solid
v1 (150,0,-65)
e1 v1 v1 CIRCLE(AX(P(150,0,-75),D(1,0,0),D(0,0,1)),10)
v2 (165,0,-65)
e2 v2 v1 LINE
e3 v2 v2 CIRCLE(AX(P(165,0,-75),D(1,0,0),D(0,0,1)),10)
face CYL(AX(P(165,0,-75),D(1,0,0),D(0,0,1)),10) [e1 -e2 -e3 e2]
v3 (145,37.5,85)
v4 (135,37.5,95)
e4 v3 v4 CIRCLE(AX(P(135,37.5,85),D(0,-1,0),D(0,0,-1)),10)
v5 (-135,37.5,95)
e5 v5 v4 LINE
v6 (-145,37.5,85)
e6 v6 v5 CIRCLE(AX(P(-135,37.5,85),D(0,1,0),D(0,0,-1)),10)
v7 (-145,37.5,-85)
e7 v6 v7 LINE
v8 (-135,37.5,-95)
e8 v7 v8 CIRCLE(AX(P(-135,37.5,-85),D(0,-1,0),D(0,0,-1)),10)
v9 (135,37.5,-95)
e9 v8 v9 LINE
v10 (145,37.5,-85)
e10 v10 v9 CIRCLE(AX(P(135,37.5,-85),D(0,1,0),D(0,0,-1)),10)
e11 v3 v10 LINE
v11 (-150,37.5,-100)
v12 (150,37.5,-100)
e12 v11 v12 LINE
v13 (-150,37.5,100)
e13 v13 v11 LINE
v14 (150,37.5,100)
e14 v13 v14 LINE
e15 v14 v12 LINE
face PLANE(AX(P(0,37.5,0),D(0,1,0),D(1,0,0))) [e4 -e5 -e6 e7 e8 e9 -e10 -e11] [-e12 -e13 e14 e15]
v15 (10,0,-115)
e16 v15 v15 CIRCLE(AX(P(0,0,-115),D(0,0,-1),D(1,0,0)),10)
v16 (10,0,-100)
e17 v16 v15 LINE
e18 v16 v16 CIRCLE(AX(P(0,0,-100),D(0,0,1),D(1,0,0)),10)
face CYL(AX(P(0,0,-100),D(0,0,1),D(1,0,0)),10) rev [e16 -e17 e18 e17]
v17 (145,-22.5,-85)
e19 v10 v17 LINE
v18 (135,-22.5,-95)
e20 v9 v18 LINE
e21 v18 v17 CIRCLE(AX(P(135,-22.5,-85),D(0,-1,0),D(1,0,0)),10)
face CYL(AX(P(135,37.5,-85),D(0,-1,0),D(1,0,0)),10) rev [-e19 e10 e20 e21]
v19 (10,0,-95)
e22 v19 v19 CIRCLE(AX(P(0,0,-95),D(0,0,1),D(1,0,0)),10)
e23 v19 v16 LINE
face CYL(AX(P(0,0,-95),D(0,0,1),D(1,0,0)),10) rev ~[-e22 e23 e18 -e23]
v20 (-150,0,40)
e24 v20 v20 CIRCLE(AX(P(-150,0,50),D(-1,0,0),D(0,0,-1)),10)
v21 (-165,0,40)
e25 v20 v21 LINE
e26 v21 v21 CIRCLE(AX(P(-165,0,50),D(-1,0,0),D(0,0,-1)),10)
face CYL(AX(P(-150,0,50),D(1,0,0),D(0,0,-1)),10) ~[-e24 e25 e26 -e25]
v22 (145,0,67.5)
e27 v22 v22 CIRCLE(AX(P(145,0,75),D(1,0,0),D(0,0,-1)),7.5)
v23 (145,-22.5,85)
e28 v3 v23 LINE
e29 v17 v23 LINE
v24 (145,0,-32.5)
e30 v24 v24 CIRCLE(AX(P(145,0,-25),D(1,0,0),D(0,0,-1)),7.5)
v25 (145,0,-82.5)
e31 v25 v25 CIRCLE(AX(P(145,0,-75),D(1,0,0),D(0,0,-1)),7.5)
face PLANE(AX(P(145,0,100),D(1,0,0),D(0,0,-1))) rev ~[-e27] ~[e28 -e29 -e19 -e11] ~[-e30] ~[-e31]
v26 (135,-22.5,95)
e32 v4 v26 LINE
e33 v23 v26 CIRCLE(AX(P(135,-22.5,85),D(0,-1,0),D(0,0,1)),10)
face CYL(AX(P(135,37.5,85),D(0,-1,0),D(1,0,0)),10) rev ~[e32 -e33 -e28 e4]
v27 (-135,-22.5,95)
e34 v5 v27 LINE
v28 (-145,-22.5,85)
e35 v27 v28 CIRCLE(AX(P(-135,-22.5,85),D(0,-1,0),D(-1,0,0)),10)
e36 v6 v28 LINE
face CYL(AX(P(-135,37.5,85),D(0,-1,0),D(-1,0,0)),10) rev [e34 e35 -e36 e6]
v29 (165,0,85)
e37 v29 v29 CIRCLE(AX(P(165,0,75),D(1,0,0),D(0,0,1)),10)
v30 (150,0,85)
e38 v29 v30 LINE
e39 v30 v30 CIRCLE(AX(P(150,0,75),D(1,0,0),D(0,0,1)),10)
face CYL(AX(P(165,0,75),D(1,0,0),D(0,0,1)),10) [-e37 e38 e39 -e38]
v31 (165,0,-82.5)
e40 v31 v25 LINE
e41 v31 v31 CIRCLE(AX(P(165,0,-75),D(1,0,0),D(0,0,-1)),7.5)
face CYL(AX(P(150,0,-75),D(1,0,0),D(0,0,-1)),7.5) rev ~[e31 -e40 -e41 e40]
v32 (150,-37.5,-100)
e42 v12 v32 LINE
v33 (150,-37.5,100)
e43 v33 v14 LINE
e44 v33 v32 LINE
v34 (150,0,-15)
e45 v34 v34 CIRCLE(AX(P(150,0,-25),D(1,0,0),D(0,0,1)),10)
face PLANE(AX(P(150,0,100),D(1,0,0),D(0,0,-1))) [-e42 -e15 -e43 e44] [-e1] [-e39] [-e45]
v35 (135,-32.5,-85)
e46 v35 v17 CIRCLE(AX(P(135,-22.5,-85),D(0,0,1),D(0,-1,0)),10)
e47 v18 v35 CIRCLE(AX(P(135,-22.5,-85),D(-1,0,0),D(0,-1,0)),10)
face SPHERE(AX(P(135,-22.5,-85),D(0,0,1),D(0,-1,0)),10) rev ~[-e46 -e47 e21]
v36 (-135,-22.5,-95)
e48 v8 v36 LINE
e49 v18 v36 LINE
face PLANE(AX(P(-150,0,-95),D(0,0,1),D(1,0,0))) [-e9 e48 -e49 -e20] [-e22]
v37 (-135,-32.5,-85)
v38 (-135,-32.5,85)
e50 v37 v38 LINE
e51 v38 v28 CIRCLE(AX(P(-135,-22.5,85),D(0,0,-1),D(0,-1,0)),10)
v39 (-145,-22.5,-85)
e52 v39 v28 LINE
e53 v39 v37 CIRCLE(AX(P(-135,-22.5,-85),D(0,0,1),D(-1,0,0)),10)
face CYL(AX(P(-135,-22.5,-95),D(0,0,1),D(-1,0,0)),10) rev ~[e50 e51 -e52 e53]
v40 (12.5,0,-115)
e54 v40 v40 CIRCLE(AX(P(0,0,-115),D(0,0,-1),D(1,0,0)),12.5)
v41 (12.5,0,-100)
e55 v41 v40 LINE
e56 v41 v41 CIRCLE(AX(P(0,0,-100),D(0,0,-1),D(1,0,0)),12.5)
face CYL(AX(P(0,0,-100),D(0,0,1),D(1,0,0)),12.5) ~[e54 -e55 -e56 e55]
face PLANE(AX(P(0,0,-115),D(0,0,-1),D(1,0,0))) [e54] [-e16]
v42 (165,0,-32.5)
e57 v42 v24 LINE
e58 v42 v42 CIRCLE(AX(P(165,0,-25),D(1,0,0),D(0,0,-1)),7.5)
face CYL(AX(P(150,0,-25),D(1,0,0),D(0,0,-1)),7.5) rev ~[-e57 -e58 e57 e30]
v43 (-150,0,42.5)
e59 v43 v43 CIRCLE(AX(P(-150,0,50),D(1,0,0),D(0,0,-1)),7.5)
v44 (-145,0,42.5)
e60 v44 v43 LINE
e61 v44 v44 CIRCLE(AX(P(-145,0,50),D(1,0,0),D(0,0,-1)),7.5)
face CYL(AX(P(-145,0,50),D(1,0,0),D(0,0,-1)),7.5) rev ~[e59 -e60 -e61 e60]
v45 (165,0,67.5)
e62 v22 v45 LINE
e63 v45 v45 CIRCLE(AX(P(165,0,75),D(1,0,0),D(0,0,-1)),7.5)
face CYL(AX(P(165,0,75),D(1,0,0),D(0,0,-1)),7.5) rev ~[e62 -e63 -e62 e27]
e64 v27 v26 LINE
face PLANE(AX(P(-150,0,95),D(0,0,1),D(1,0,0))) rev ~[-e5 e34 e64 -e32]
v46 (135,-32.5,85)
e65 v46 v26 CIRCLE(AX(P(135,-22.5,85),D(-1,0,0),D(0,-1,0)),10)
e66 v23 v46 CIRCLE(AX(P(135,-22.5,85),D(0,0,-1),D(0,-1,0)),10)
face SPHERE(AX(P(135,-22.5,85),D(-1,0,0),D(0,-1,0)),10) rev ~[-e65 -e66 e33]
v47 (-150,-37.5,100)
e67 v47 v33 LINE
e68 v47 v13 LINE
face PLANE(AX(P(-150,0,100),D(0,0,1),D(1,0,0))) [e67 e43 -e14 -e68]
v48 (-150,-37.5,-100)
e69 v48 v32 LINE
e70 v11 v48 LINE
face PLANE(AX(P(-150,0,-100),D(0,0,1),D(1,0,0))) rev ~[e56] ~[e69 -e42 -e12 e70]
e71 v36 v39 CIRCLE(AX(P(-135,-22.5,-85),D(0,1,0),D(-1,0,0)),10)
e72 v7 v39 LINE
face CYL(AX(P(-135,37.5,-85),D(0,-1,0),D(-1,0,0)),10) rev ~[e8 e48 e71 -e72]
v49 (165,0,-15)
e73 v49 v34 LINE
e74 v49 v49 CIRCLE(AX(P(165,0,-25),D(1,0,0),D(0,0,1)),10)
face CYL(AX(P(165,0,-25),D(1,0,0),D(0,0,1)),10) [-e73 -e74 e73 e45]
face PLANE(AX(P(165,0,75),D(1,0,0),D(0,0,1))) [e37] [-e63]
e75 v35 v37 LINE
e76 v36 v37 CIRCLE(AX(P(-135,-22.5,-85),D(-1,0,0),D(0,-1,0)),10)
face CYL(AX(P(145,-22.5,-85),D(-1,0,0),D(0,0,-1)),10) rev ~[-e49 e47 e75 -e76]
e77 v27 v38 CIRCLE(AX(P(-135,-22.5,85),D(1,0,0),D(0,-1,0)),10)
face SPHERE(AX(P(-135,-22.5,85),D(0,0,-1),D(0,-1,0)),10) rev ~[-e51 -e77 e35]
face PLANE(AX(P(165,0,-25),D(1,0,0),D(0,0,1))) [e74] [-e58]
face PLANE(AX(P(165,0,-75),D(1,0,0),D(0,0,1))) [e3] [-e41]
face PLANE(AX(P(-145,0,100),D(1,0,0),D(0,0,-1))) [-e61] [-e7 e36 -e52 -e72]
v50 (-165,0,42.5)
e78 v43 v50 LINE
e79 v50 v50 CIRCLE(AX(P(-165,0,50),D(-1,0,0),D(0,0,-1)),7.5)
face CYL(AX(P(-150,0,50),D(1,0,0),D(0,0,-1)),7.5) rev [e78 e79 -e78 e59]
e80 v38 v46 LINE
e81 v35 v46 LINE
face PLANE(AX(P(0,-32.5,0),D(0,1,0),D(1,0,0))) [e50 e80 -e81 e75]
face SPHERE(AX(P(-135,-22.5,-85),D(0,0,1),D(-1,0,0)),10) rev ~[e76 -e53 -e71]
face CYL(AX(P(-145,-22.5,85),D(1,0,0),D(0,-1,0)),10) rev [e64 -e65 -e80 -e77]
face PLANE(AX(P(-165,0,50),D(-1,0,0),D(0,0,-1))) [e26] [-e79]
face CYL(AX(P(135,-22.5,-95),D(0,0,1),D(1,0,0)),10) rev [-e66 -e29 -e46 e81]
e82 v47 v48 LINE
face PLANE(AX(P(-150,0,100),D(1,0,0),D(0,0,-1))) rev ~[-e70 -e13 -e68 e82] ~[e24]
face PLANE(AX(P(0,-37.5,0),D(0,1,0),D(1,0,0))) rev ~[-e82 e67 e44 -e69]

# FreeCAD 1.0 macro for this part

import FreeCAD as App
import Part
import Sketcher

V = App.Vector
Q = App.Units.Quantity


def edges_at(feature, points):
    """Names of the edges that pass closest to the given points."""
    edges = feature.Shape.Edges
    near = lambda p: min(range(len(edges)), key=lambda i: edges[i].distToShape(Part.Vertex(*p))[0])
    return sorted({f"Edge{near(p) + 1}" for p in points})


def faces_at(feature, points):
    """Names of the faces that lie closest to the given points."""
    faces = feature.Shape.Faces
    near = lambda p: min(range(len(faces)), key=lambda i: faces[i].distToShape(Part.Vertex(*p))[0])
    return sorted({f"Face{near(p) + 1}" for p in points})


def add_polygon(sketch, points):
    """Adds a closed chain of lines whose ends are joined by coincident constraints."""
    first, n = sketch.GeometryCount, len(points)
    for a, b in zip(points, points[1:] + points[:1]):
        sketch.addGeometry(Part.LineSegment(App.Vector(*a, 0), App.Vector(*b, 0)), False)
    for i in range(n):
        sketch.addConstraint(Sketcher.Constraint("Coincident", first + i, 2, first + (i + 1) % n, 1))

doc = App.newDocument("Part")
body = doc.addObject("PartDesign::Body", "Body")

# Sketch on XZ plane
sketch1 = doc.addObject("Sketcher::SketchObject", "Sketch")
body.addObject(sketch1)
sketch1.AttachmentSupport = (doc.XZ_Plane, [""])
sketch1.MapMode = "FlatFace"
add_polygon(sketch1, [(-150, -100), (-150, 100), (150, 100), (150, -100)])  # lines 0-3
sketch1.addConstraint(Sketcher.Constraint("Vertical", 0))
sketch1.addConstraint(Sketcher.Constraint("Horizontal", 1))
sketch1.addConstraint(Sketcher.Constraint("Vertical", 2))
sketch1.addConstraint(Sketcher.Constraint("Horizontal", 3))
sketch1.addConstraint(Sketcher.Constraint("Symmetric", 0, 2, 2, 2, -1, 1))
sketch1.addConstraint(Sketcher.Constraint("DistanceX", 1, 1, 1, 2, Q("300 mm")))
sketch1.addConstraint(Sketcher.Constraint("DistanceY", 0, 1, 0, 2, Q("200 mm")))
pad1 = doc.addObject("PartDesign::Pad", "Pad")
body.addObject(pad1)
pad1.Profile = sketch1
pad1.Length = 75
pad1.Midplane = True
doc.recompute()

thickness = doc.addObject("PartDesign::Thickness", "Thickness")
body.addObject(thickness)
thickness.Base = (pad1, faces_at(pad1, [(0, 37.5, 0)]))
thickness.Value = 5
thickness.Reversed = True
thickness.Join = "Intersection"
doc.recompute()

fillet = doc.addObject("PartDesign::Fillet", "Fillet")
body.addObject(fillet)
fillet.Base = (thickness, edges_at(thickness, [
    (-145, -32.5, 0),
    (-145, 2.5, -95),
    (0, -32.5, 95),
    (-145, 2.5, 95),
    (145, -32.5, 0),
    (145, 2.5, 95),
    (0, -32.5, -95),
    (145, 2.5, -95),
]))
fillet.Radius = 10

# Sketch on YZ plane
sketch2 = doc.addObject("Sketcher::SketchObject", "Sketch001")
body.addObject(sketch2)
sketch2.AttachmentSupport = (doc.YZ_Plane, [""])
sketch2.MapMode = "FlatFace"
sketch2.AttachmentOffset = App.Placement(V(0, 0, 150), App.Rotation())
sketch2.addGeometry(Part.Circle(V(0, -75, 0), V(0, 0, 1), 8), False)
sketch2.addGeometry(Part.Circle(V(0, -25, 0), V(0, 0, 1), 8), False)
sketch2.addGeometry(Part.Circle(V(0, 75, 0), V(0, 0, 1), 8), False)
sketch2.addConstraint(Sketcher.Constraint("Equal", 0, 1))
sketch2.addConstraint(Sketcher.Constraint("Equal", 1, 2))
sketch2.addConstraint(Sketcher.Constraint("Symmetric", 0, 3, 2, 3, -1, 1))
sketch2.addConstraint(Sketcher.Constraint("PointOnObject", 0, 3, -2))
sketch2.addConstraint(Sketcher.Constraint("PointOnObject", 1, 3, -2))
sketch2.addConstraint(Sketcher.Constraint("Diameter", 0, Q("15 mm")))
sketch2.addConstraint(Sketcher.Constraint("DistanceY", 0, 3, -1, 1, Q("75 mm")))
sketch2.addConstraint(Sketcher.Constraint("DistanceY", 1, 3, -1, 1, Q("25 mm")))
pocket1 = doc.addObject("PartDesign::Pocket", "Pocket")
body.addObject(pocket1)
pocket1.Profile = sketch2
pocket1.Length = 5

# Sketch on YZ plane
sketch3 = doc.addObject("Sketcher::SketchObject", "Sketch002")
body.addObject(sketch3)
sketch3.AttachmentSupport = (doc.YZ_Plane, [""])
sketch3.MapMode = "FlatFace"
sketch3.AttachmentOffset = App.Placement(V(0, 0, -145), App.Rotation())
sketch3.addGeometry(Part.Circle(V(0, 50, 0), V(0, 0, 1), 8), False)
sketch3.addConstraint(Sketcher.Constraint("PointOnObject", 0, 3, -2))
sketch3.addConstraint(Sketcher.Constraint("Diameter", 0, Q("15 mm")))
sketch3.addConstraint(Sketcher.Constraint("DistanceY", -1, 1, 0, 3, Q("50 mm")))
pocket2 = doc.addObject("PartDesign::Pocket", "Pocket001")
body.addObject(pocket2)
pocket2.Profile = sketch3
pocket2.Length = 5

# Sketch on XY plane
sketch4 = doc.addObject("Sketcher::SketchObject", "Sketch003")
body.addObject(sketch4)
sketch4.AttachmentSupport = (doc.XY_Plane, [""])
sketch4.MapMode = "FlatFace"
sketch4.AttachmentOffset = App.Placement(V(0, 0, -95), App.Rotation())
sketch4.addGeometry(Part.Circle(V(0, 0, 0), V(0, 0, 1), 10), False)
sketch4.addConstraint(Sketcher.Constraint("Coincident", 0, 3, -1, 1))
sketch4.addConstraint(Sketcher.Constraint("Diameter", 0, Q("20 mm")))
pocket3 = doc.addObject("PartDesign::Pocket", "Pocket002")
body.addObject(pocket3)
pocket3.Profile = sketch4
pocket3.Length = 5

# Sketch on YZ plane
sketch5 = doc.addObject("Sketcher::SketchObject", "Sketch004")
body.addObject(sketch5)
sketch5.AttachmentSupport = (doc.YZ_Plane, [""])
sketch5.MapMode = "FlatFace"
sketch5.AttachmentOffset = App.Placement(V(0, 0, 165), App.Rotation())
sketch5.addGeometry(Part.Circle(V(0, 75, 0), V(0, 0, 1), 10), False)
sketch5.addGeometry(Part.Circle(V(0, 75, 0), V(0, 0, 1), 8), False)
sketch5.addGeometry(Part.Circle(V(0, -25, 0), V(0, 0, 1), 10), False)
sketch5.addGeometry(Part.Circle(V(0, -25, 0), V(0, 0, 1), 8), False)
sketch5.addGeometry(Part.Circle(V(0, -75, 0), V(0, 0, 1), 10), False)
sketch5.addGeometry(Part.Circle(V(0, -75, 0), V(0, 0, 1), 8), False)
sketch5.addConstraint(Sketcher.Constraint("Coincident", 1, 3, 0, 3))
sketch5.addConstraint(Sketcher.Constraint("Coincident", 3, 3, 2, 3))
sketch5.addConstraint(Sketcher.Constraint("Coincident", 5, 3, 4, 3))
sketch5.addConstraint(Sketcher.Constraint("Equal", 0, 2))
sketch5.addConstraint(Sketcher.Constraint("Equal", 1, 3))
sketch5.addConstraint(Sketcher.Constraint("Equal", 2, 4))
sketch5.addConstraint(Sketcher.Constraint("Equal", 3, 5))
sketch5.addConstraint(Sketcher.Constraint("Symmetric", 0, 3, 4, 3, -1, 1))
sketch5.addConstraint(Sketcher.Constraint("PointOnObject", 0, 3, -2))
sketch5.addConstraint(Sketcher.Constraint("PointOnObject", 2, 3, -2))
sketch5.addConstraint(Sketcher.Constraint("Diameter", 0, Q("20 mm")))
sketch5.addConstraint(Sketcher.Constraint("Diameter", 1, Q("15 mm")))
sketch5.addConstraint(Sketcher.Constraint("DistanceY", -1, 1, 0, 3, Q("75 mm")))
sketch5.addConstraint(Sketcher.Constraint("DistanceY", 2, 3, -1, 1, Q("25 mm")))
pad2 = doc.addObject("PartDesign::Pad", "Pad001")
body.addObject(pad2)
pad2.Profile = sketch5
pad2.Length = 15
pad2.Reversed = True

# Sketch on YZ plane
sketch6 = doc.addObject("Sketcher::SketchObject", "Sketch005")
body.addObject(sketch6)
sketch6.AttachmentSupport = (doc.YZ_Plane, [""])
sketch6.MapMode = "FlatFace"
sketch6.AttachmentOffset = App.Placement(V(0, 0, -150), App.Rotation())
sketch6.addGeometry(Part.Circle(V(0, 50, 0), V(0, 0, 1), 10), False)
sketch6.addGeometry(Part.Circle(V(0, 50, 0), V(0, 0, 1), 8), False)
sketch6.addConstraint(Sketcher.Constraint("Coincident", 1, 3, 0, 3))
sketch6.addConstraint(Sketcher.Constraint("PointOnObject", 0, 3, -2))
sketch6.addConstraint(Sketcher.Constraint("Diameter", 0, Q("20 mm")))
sketch6.addConstraint(Sketcher.Constraint("Diameter", 1, Q("15 mm")))
sketch6.addConstraint(Sketcher.Constraint("DistanceY", -1, 1, 0, 3, Q("50 mm")))
pad3 = doc.addObject("PartDesign::Pad", "Pad002")
body.addObject(pad3)
pad3.Profile = sketch6
pad3.Length = 15
pad3.Reversed = True

# Sketch on XY plane
sketch7 = doc.addObject("Sketcher::SketchObject", "Sketch006")
body.addObject(sketch7)
sketch7.AttachmentSupport = (doc.XY_Plane, [""])
sketch7.MapMode = "FlatFace"
sketch7.AttachmentOffset = App.Placement(V(0, 0, -100), App.Rotation())
sketch7.addGeometry(Part.Circle(V(0, 0, 0), V(0, 0, 1), 12), False)
sketch7.addGeometry(Part.Circle(V(0, 0, 0), V(0, 0, 1), 10), False)
sketch7.addConstraint(Sketcher.Constraint("Coincident", 0, 3, -1, 1))
sketch7.addConstraint(Sketcher.Constraint("Coincident", 1, 3, -1, 1))
sketch7.addConstraint(Sketcher.Constraint("Diameter", 0, Q("25 mm")))
sketch7.addConstraint(Sketcher.Constraint("Diameter", 1, Q("20 mm")))
pad4 = doc.addObject("PartDesign::Pad", "Pad003")
body.addObject(pad4)
pad4.Profile = sketch7
pad4.Length = 15
pad4.Reversed = True

doc.recompute()
